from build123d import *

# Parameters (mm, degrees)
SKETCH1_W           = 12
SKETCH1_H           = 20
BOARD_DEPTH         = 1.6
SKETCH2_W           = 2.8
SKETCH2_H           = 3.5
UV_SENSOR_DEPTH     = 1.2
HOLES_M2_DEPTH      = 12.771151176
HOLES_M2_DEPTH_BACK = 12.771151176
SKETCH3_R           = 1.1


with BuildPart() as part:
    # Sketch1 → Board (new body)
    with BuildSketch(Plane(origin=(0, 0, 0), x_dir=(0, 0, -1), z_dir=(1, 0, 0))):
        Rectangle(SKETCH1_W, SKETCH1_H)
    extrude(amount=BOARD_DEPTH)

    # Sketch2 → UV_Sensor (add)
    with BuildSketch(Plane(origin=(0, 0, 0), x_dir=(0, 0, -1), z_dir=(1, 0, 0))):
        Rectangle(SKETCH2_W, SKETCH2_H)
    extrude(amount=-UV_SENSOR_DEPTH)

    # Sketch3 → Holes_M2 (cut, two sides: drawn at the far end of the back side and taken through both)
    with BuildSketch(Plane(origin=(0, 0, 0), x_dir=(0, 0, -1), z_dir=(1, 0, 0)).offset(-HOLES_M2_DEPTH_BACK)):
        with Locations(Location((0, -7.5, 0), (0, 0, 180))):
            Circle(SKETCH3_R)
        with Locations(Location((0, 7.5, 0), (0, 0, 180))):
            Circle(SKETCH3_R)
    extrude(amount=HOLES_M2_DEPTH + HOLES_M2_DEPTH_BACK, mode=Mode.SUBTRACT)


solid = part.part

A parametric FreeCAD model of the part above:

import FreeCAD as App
import Part
import Sketcher
from FreeCAD import Vector


def add_polygon(sketch, points):
    """Adds a closed chain of lines whose ends are joined by coincident constraints."""
    first, n = sketch.GeometryCount, len(points)
    for a, b in zip(points, points[1:] + points[:1]):
        sketch.addGeometry(Part.LineSegment(App.Vector(*a, 0), App.Vector(*b, 0)), False)
    for i in range(n):
        sketch.addConstraint(Sketcher.Constraint("Coincident", first + i, 2, first + (i + 1) % n, 1))

doc = App.newDocument("Part")
params = doc.addObject("Spreadsheet::Sheet", "Params")
for row, (alias, value) in enumerate([
    ("sketch1_width", "20 mm"),
    ("sketch1_height", "12 mm"),
    ("pad1_length", "1.6 mm"),
    ("sketch2_width", "3.5 mm"),
    ("sketch2_height", "2.8 mm"),
    ("pad2_length", "1.2 mm"),
    ("sketch3_diameter", "2.2 mm"),
], start=1):
    params.set(f"A{row}", alias)
    params.set(f"B{row}", "=" + value)
    params.setAlias(f"B{row}", alias)

body = doc.addObject("PartDesign::Body", "Body")

# Sketch on YZ plane
sketch1 = body.newObject("Sketcher::SketchObject", "Sketch")
sketch1.AttachmentSupport = (doc.getObject("YZ_Plane"), [""])
sketch1.MapMode = "FlatFace"
add_polygon(sketch1, [(10, 6), (-10, 6), (-10, -6), (10, -6)])  # lines 0-3
sketch1.addConstraint(Sketcher.Constraint("Horizontal", 0))
sketch1.addConstraint(Sketcher.Constraint("Vertical", 1))
sketch1.addConstraint(Sketcher.Constraint("Horizontal", 2))
sketch1.addConstraint(Sketcher.Constraint("Vertical", 3))
sketch1.addConstraint(Sketcher.Constraint("Symmetric", 0, 2, 2, 2, -1, 1))
sketch1.addConstraint(Sketcher.Constraint("DistanceX", 0, 2, 0, 1, 20.0))
sketch1.addConstraint(Sketcher.Constraint("DistanceY", 1, 2, 1, 1, 12.0))
sketch1.setExpression("Constraints[9]", "Params.sketch1_width")
sketch1.setExpression("Constraints[10]", "Params.sketch1_height")
pad1 = body.newObject("PartDesign::Pad", "Pad")
pad1.Profile = sketch1
pad1.setExpression("Length", "Params.pad1_length")

# Sketch on YZ plane
sketch2 = body.newObject("Sketcher::SketchObject", "Sketch001")
sketch2.AttachmentSupport = (doc.getObject("YZ_Plane"), [""])
sketch2.MapMode = "FlatFace"
add_polygon(sketch2, [(1.8, 1.4), (-1.8, 1.4), (-1.8, -1.4), (1.8, -1.4)])  # lines 0-3
sketch2.addConstraint(Sketcher.Constraint("Horizontal", 0))
sketch2.addConstraint(Sketcher.Constraint("Vertical", 1))
sketch2.addConstraint(Sketcher.Constraint("Horizontal", 2))
sketch2.addConstraint(Sketcher.Constraint("Vertical", 3))
sketch2.addConstraint(Sketcher.Constraint("Symmetric", 0, 2, 2, 2, -1, 1))
sketch2.addConstraint(Sketcher.Constraint("DistanceX", 0, 2, 0, 1, 3.5))
sketch2.addConstraint(Sketcher.Constraint("DistanceY", 1, 2, 1, 1, 2.8))
sketch2.setExpression("Constraints[9]", "Params.sketch2_width")
sketch2.setExpression("Constraints[10]", "Params.sketch2_height")
pad2 = body.newObject("PartDesign::Pad", "Pad001")
pad2.Profile = sketch2
pad2.setExpression("Length", "Params.pad2_length")
pad2.Reversed = True

# Sketch on YZ plane
sketch3 = body.newObject("Sketcher::SketchObject", "Sketch002")
sketch3.AttachmentSupport = (doc.getObject("YZ_Plane"), [""])
sketch3.MapMode = "FlatFace"
sketch3.addGeometry(Part.Circle(Vector(-7.5, 0, 0), Vector(0, 0, 1), 1.1), False)
sketch3.addGeometry(Part.Circle(Vector(7.5, 0, 0), Vector(0, 0, 1), 1.1), False)
sketch3.addConstraint(Sketcher.Constraint("Equal", 0, 1))
sketch3.addConstraint(Sketcher.Constraint("Symmetric", 0, 3, 1, 3, -1, 1))
sketch3.addConstraint(Sketcher.Constraint("PointOnObject", 0, 3, -1))
sketch3.addConstraint(Sketcher.Constraint("Diameter", 0, 2.2))
sketch3.addConstraint(Sketcher.Constraint("DistanceX", 0, 3, 1, 3, 15.0))
sketch3.setExpression("Constraints[3]", "Params.sketch3_diameter")
pocket1 = body.newObject("PartDesign::Pocket", "Pocket")
pocket1.Profile = sketch3
pocket1.Type = "ThroughAll"
pocket1.Midplane = True

doc.recompute()
